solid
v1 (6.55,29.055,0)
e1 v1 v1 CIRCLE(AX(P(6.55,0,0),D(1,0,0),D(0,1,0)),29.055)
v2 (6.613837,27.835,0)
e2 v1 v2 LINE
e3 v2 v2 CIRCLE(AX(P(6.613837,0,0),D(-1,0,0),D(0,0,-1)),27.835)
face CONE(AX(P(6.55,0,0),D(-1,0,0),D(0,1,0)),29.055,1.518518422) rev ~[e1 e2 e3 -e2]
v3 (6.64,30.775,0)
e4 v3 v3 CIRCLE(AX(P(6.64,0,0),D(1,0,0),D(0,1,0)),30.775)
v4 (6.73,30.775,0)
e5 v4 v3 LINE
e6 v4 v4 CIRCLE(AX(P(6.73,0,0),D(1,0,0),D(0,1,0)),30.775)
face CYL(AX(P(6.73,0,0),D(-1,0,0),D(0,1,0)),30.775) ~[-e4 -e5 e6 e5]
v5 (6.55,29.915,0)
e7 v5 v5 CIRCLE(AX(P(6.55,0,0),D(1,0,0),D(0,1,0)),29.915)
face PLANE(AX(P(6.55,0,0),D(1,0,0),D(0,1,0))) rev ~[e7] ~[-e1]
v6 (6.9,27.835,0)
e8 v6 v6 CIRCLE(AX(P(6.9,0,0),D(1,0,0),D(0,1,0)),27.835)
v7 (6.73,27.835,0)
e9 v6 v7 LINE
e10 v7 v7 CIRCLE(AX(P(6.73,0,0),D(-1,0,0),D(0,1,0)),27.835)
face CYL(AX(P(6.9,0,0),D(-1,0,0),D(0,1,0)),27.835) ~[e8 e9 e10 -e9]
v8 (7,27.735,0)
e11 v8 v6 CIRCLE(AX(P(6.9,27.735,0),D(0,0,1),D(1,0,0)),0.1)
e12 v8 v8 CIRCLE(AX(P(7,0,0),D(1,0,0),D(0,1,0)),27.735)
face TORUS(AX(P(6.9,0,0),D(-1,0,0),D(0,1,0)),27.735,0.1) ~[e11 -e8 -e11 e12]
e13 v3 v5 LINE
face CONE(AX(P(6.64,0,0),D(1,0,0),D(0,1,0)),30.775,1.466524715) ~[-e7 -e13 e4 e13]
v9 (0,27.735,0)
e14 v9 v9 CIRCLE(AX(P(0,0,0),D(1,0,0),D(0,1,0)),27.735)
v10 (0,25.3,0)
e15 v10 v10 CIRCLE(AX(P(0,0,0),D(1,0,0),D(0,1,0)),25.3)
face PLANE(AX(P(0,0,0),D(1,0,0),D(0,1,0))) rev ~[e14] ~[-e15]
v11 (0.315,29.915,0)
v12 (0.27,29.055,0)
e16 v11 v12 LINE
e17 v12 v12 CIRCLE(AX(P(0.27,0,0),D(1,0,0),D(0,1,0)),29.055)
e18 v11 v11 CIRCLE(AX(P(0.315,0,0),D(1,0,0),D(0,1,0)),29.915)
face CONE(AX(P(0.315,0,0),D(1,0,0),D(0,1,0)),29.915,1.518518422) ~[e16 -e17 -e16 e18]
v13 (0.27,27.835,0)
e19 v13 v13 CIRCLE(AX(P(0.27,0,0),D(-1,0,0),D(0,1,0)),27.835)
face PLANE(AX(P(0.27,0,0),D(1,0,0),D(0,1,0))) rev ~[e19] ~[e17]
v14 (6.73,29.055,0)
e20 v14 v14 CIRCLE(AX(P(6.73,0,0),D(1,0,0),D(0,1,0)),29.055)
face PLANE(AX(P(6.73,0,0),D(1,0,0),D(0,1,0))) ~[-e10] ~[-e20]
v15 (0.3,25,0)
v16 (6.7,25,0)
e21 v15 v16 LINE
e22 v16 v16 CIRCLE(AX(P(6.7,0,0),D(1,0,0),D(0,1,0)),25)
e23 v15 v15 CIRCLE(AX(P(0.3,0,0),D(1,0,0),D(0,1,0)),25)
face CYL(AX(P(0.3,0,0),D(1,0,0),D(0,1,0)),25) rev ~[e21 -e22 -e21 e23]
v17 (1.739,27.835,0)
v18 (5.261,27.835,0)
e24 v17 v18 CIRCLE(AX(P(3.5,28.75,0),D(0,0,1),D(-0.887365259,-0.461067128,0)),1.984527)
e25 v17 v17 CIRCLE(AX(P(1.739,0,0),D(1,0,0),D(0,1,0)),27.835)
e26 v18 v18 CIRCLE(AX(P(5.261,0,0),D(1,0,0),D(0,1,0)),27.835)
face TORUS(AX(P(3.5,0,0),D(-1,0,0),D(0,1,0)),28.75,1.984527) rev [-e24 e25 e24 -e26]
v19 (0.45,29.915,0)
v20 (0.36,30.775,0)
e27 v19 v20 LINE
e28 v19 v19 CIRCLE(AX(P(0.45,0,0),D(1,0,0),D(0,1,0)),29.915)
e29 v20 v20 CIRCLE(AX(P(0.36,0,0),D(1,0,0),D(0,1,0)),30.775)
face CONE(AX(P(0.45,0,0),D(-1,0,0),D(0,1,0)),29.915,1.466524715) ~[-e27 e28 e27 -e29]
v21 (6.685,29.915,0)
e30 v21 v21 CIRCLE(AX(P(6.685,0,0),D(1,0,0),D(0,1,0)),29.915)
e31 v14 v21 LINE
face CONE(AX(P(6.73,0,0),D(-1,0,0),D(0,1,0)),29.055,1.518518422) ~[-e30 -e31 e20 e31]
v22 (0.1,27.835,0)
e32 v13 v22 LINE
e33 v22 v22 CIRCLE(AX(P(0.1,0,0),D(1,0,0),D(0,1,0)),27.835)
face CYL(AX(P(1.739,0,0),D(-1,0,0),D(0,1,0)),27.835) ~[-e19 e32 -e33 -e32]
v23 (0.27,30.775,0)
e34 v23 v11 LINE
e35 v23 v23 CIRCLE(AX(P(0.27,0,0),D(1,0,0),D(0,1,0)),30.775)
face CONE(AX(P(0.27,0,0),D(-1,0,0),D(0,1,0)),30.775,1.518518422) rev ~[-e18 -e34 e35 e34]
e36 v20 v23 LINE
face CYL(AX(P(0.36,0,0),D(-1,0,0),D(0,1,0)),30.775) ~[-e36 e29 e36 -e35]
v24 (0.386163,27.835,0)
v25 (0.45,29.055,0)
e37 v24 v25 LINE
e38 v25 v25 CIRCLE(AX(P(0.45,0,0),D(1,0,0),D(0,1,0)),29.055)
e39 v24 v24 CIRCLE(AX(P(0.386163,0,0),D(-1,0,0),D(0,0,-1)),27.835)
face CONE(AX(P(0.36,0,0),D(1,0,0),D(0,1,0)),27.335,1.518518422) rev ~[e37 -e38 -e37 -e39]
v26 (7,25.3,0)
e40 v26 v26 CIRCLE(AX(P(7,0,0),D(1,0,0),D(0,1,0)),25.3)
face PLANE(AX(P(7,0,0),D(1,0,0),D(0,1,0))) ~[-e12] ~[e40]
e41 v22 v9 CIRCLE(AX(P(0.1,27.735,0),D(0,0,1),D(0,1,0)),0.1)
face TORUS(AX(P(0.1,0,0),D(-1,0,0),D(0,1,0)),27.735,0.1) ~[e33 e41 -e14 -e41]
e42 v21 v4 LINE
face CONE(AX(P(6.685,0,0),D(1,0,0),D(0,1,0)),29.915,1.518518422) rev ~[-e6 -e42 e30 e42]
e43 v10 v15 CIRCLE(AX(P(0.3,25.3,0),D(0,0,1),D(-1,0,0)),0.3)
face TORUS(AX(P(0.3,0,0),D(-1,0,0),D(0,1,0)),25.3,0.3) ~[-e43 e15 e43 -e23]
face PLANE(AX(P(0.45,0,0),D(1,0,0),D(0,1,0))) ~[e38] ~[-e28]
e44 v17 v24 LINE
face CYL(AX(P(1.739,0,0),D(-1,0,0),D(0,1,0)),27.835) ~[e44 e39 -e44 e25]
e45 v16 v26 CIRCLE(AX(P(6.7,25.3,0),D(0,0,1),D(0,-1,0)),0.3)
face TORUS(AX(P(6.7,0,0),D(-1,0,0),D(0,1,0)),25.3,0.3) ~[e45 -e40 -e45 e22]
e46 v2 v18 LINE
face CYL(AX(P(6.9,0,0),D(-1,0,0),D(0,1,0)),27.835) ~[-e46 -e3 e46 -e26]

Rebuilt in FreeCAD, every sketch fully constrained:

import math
import FreeCAD as App
import Part
import Sketcher

V = App.Vector
Q = App.Units.Quantity

doc = App.newDocument("Part")
body = doc.addObject("PartDesign::Body", "Body")

# Sketch on XY plane
sketch1 = doc.addObject("Sketcher::SketchObject", "Sketch")
body.addObject(sketch1)
sketch1.AttachmentSupport = (doc.XY_Plane, [""])
sketch1.MapMode = "FlatFace"
sketch1.addGeometry([
    Part.ArcOfCircle(Part.Circle(V(0.1, 27.735, 0), V(0, 0, 1), 0.1), math.radians(90), math.radians(180)),  # 0
    Part.LineSegment(V(0, 27.735, 0), V(0, 25.3, 0)),  # 1
    Part.ArcOfCircle(Part.Circle(V(0.3, 25.3, 0), V(0, 0, 1), 0.3), math.radians(180), math.radians(270)),  # 2
    Part.LineSegment(V(0.3, 25, 0), V(6.7, 25, 0)),  # 3
    Part.ArcOfCircle(Part.Circle(V(6.7, 25.3, 0), V(0, 0, 1), 0.3), math.radians(-90), math.radians(0)),  # 4
    Part.LineSegment(V(7, 25.3, 0), V(7, 27.735, 0)),  # 5
    Part.ArcOfCircle(Part.Circle(V(6.9, 27.735, 0), V(0, 0, 1), 0.1), math.radians(0), math.radians(90)),  # 6
    Part.LineSegment(V(6.9, 27.835, 0), V(5.261, 27.835, 0)),  # 7
    Part.ArcOfCircle(Part.Circle(V(3.5, 28.75, 0), V(0, 0, 1), 1.984527), math.radians(-152.544011), math.radians(-27.455989)),  # 8
    Part.LineSegment(V(1.739, 27.835, 0), V(0.1, 27.835, 0)),  # 9
], False)
sketch1.addConstraint([
    Sketcher.Constraint("Tangent", 0, 2, 1, 1),
    Sketcher.Constraint("Tangent", 1, 2, 2, 1),
    Sketcher.Constraint("Tangent", 2, 2, 3, 1),
    Sketcher.Constraint("Tangent", 3, 2, 4, 1),
    Sketcher.Constraint("Tangent", 4, 2, 5, 1),
    Sketcher.Constraint("Tangent", 5, 2, 6, 1),
    Sketcher.Constraint("Tangent", 6, 2, 7, 1),
    Sketcher.Constraint("Coincident", 7, 2, 8, 2),
    Sketcher.Constraint("Coincident", 8, 1, 9, 1),
    Sketcher.Constraint("Tangent", 9, 2, 0, 1),
    Sketcher.Constraint("Vertical", 1),
    Sketcher.Constraint("Horizontal", 3),
    Sketcher.Constraint("Vertical", 5),
    Sketcher.Constraint("Horizontal", 7),
    Sketcher.Constraint("Horizontal", 9),
    Sketcher.Constraint("Equal", 2, 4),
    Sketcher.Constraint("Equal", 0, 6),
    Sketcher.Constraint("PointOnObject", 0, 2, -2),
    Sketcher.Constraint("Horizontal", 0, 3, 6, 3),
    Sketcher.Constraint("Equal", 7, 9),
    Sketcher.Constraint("Radius", 0, Q("0.1 mm")),
    Sketcher.Constraint("Radius", 2, Q("0.3 mm")),
    Sketcher.Constraint("DistanceX", 3, 1, 3, 2, Q("6.4 mm")),
    Sketcher.Constraint("DistanceY", -1, 1, 2, 2, Q("25 mm")),
    Sketcher.Constraint("Radius", 8, Q("1.9845 mm")),
    Sketcher.Constraint("DistanceX", 7, 2, 7, 1, Q("1.639 mm")),
    Sketcher.Constraint("DistanceY", 1, 2, 1, 1, Q("2.435 mm")),
])
revolution = doc.addObject("PartDesign::Revolution", "Revolution")
body.addObject(revolution)
revolution.Profile = sketch1
revolution.ReferenceAxis = (sketch1, ["H_Axis"])
revolution.Angle = 360

# Sketch on XY plane
sketch2 = doc.addObject("Sketcher::SketchObject", "Sketch001")
body.addObject(sketch2)
sketch2.AttachmentSupport = (doc.XY_Plane, [""])
sketch2.MapMode = "FlatFace"
sketch2.addGeometry([
    Part.LineSegment(V(0.36, 30.775, 0), V(0.27, 30.775, 0)),  # 0
    Part.LineSegment(V(0.27, 30.775, 0), V(0.315, 29.915, 0)),  # 1
    Part.LineSegment(V(0.315, 29.915, 0), V(0.27, 29.055, 0)),  # 2
    Part.LineSegment(V(0.27, 29.055, 0), V(0.27, 27.335, 0)),  # 3
    Part.LineSegment(V(0.27, 27.335, 0), V(0.36, 27.335, 0)),  # 4
    Part.LineSegment(V(0.36, 27.335, 0), V(0.45, 29.055, 0)),  # 5
    Part.LineSegment(V(0.45, 29.055, 0), V(0.45, 29.915, 0)),  # 6
    Part.LineSegment(V(0.45, 29.915, 0), V(0.36, 30.775, 0)),  # 7
], False)
sketch2.addConstraint([
    Sketcher.Constraint("Coincident", 0, 2, 1, 1),
    Sketcher.Constraint("Coincident", 1, 2, 2, 1),
    Sketcher.Constraint("Coincident", 2, 2, 3, 1),
    Sketcher.Constraint("Coincident", 3, 2, 4, 1),
    Sketcher.Constraint("Coincident", 4, 2, 5, 1),
    Sketcher.Constraint("Coincident", 5, 2, 6, 1),
    Sketcher.Constraint("Coincident", 6, 2, 7, 1),
    Sketcher.Constraint("Coincident", 7, 2, 0, 1),
    Sketcher.Constraint("Horizontal", 0),
    Sketcher.Constraint("Vertical", 3),
    Sketcher.Constraint("Horizontal", 4),
    Sketcher.Constraint("Vertical", 6),
    Sketcher.Constraint("Parallel", 2, 5),
    Sketcher.Constraint("Horizontal", 2, 2, 5, 2),
    Sketcher.Constraint("Horizontal", 1, 2, 6, 2),
    Sketcher.Constraint("Vertical", 0, 2, 2, 2),
    Sketcher.Constraint("Vertical", 4, 2, 7, 2),
    Sketcher.Constraint("Equal", 1, 2),
    Sketcher.Constraint("DistanceX", 0, 2, 0, 1, Q("0.09 mm")),
    Sketcher.Constraint("DistanceY", 3, 2, 3, 1, Q("1.72 mm")),
    Sketcher.Constraint("DistanceY", 6, 1, 6, 2, Q("0.86 mm")),
    Sketcher.Constraint("DistanceX", -1, 1, 0, 2, Q("0.27 mm")),
    Sketcher.Constraint("DistanceX", -1, 1, 5, 2, Q("0.45 mm")),
    Sketcher.Constraint("DistanceY", -1, 1, 0, 2, Q("30.775 mm")),
])
revolution2 = doc.addObject("PartDesign::Revolution", "Revolution001")
body.addObject(revolution2)
revolution2.Profile = sketch2
revolution2.ReferenceAxis = (sketch2, ["H_Axis"])
revolution2.Angle = 360

# Sketch on XY plane
sketch3 = doc.addObject("Sketcher::SketchObject", "Sketch002")
body.addObject(sketch3)
sketch3.AttachmentSupport = (doc.XY_Plane, [""])
sketch3.MapMode = "FlatFace"
sketch3.addGeometry([
    Part.LineSegment(V(6.64, 30.775, 0), V(6.55, 29.915, 0)),  # 0
    Part.LineSegment(V(6.55, 29.915, 0), V(6.55, 29.055, 0)),  # 1
    Part.LineSegment(V(6.55, 29.055, 0), V(6.64, 27.335, 0)),  # 2
    Part.LineSegment(V(6.64, 27.335, 0), V(6.73, 27.335, 0)),  # 3
    Part.LineSegment(V(6.73, 27.335, 0), V(6.73, 29.055, 0)),  # 4
    Part.LineSegment(V(6.73, 29.055, 0), V(6.685, 29.915, 0)),  # 5
    Part.LineSegment(V(6.685, 29.915, 0), V(6.73, 30.775, 0)),  # 6
    Part.LineSegment(V(6.73, 30.775, 0), V(6.64, 30.775, 0)),  # 7
], False)
sketch3.addConstraint([
    Sketcher.Constraint("Coincident", 0, 2, 1, 1),
    Sketcher.Constraint("Coincident", 1, 2, 2, 1),
    Sketcher.Constraint("Coincident", 2, 2, 3, 1),
    Sketcher.Constraint("Coincident", 3, 2, 4, 1),
    Sketcher.Constraint("Coincident", 4, 2, 5, 1),
    Sketcher.Constraint("Coincident", 5, 2, 6, 1),
    Sketcher.Constraint("Coincident", 6, 2, 7, 1),
    Sketcher.Constraint("Coincident", 7, 2, 0, 1),
    Sketcher.Constraint("Vertical", 1),
    Sketcher.Constraint("Horizontal", 3),
    Sketcher.Constraint("Vertical", 4),
    Sketcher.Constraint("Horizontal", 7),
    Sketcher.Constraint("Parallel", 2, 5),
    Sketcher.Constraint("Horizontal", 1, 2, 4, 2),
    Sketcher.Constraint("Horizontal", 0, 2, 5, 2),
    Sketcher.Constraint("Vertical", 4, 2, 6, 2),
    Sketcher.Constraint("Vertical", 2, 2, 7, 2),
    Sketcher.Constraint("Equal", 5, 6),
    Sketcher.Constraint("DistanceX", 3, 1, 3, 2, Q("0.09 mm")),
    Sketcher.Constraint("DistanceY", 1, 2, 1, 1, Q("0.86 mm")),
    Sketcher.Constraint("DistanceY", 4, 1, 4, 2, Q("1.72 mm")),
    Sketcher.Constraint("DistanceX", -1, 1, 0, 2, Q("6.55 mm")),
    Sketcher.Constraint("DistanceX", -1, 1, 2, 2, Q("6.64 mm")),
    Sketcher.Constraint("DistanceY", -1, 1, 0, 2, Q("29.915 mm")),
])
revolution3 = doc.addObject("PartDesign::Revolution", "Revolution002")
body.addObject(revolution3)
revolution3.Profile = sketch3
revolution3.ReferenceAxis = (sketch3, ["H_Axis"])
revolution3.Angle = 360

doc.recompute()
